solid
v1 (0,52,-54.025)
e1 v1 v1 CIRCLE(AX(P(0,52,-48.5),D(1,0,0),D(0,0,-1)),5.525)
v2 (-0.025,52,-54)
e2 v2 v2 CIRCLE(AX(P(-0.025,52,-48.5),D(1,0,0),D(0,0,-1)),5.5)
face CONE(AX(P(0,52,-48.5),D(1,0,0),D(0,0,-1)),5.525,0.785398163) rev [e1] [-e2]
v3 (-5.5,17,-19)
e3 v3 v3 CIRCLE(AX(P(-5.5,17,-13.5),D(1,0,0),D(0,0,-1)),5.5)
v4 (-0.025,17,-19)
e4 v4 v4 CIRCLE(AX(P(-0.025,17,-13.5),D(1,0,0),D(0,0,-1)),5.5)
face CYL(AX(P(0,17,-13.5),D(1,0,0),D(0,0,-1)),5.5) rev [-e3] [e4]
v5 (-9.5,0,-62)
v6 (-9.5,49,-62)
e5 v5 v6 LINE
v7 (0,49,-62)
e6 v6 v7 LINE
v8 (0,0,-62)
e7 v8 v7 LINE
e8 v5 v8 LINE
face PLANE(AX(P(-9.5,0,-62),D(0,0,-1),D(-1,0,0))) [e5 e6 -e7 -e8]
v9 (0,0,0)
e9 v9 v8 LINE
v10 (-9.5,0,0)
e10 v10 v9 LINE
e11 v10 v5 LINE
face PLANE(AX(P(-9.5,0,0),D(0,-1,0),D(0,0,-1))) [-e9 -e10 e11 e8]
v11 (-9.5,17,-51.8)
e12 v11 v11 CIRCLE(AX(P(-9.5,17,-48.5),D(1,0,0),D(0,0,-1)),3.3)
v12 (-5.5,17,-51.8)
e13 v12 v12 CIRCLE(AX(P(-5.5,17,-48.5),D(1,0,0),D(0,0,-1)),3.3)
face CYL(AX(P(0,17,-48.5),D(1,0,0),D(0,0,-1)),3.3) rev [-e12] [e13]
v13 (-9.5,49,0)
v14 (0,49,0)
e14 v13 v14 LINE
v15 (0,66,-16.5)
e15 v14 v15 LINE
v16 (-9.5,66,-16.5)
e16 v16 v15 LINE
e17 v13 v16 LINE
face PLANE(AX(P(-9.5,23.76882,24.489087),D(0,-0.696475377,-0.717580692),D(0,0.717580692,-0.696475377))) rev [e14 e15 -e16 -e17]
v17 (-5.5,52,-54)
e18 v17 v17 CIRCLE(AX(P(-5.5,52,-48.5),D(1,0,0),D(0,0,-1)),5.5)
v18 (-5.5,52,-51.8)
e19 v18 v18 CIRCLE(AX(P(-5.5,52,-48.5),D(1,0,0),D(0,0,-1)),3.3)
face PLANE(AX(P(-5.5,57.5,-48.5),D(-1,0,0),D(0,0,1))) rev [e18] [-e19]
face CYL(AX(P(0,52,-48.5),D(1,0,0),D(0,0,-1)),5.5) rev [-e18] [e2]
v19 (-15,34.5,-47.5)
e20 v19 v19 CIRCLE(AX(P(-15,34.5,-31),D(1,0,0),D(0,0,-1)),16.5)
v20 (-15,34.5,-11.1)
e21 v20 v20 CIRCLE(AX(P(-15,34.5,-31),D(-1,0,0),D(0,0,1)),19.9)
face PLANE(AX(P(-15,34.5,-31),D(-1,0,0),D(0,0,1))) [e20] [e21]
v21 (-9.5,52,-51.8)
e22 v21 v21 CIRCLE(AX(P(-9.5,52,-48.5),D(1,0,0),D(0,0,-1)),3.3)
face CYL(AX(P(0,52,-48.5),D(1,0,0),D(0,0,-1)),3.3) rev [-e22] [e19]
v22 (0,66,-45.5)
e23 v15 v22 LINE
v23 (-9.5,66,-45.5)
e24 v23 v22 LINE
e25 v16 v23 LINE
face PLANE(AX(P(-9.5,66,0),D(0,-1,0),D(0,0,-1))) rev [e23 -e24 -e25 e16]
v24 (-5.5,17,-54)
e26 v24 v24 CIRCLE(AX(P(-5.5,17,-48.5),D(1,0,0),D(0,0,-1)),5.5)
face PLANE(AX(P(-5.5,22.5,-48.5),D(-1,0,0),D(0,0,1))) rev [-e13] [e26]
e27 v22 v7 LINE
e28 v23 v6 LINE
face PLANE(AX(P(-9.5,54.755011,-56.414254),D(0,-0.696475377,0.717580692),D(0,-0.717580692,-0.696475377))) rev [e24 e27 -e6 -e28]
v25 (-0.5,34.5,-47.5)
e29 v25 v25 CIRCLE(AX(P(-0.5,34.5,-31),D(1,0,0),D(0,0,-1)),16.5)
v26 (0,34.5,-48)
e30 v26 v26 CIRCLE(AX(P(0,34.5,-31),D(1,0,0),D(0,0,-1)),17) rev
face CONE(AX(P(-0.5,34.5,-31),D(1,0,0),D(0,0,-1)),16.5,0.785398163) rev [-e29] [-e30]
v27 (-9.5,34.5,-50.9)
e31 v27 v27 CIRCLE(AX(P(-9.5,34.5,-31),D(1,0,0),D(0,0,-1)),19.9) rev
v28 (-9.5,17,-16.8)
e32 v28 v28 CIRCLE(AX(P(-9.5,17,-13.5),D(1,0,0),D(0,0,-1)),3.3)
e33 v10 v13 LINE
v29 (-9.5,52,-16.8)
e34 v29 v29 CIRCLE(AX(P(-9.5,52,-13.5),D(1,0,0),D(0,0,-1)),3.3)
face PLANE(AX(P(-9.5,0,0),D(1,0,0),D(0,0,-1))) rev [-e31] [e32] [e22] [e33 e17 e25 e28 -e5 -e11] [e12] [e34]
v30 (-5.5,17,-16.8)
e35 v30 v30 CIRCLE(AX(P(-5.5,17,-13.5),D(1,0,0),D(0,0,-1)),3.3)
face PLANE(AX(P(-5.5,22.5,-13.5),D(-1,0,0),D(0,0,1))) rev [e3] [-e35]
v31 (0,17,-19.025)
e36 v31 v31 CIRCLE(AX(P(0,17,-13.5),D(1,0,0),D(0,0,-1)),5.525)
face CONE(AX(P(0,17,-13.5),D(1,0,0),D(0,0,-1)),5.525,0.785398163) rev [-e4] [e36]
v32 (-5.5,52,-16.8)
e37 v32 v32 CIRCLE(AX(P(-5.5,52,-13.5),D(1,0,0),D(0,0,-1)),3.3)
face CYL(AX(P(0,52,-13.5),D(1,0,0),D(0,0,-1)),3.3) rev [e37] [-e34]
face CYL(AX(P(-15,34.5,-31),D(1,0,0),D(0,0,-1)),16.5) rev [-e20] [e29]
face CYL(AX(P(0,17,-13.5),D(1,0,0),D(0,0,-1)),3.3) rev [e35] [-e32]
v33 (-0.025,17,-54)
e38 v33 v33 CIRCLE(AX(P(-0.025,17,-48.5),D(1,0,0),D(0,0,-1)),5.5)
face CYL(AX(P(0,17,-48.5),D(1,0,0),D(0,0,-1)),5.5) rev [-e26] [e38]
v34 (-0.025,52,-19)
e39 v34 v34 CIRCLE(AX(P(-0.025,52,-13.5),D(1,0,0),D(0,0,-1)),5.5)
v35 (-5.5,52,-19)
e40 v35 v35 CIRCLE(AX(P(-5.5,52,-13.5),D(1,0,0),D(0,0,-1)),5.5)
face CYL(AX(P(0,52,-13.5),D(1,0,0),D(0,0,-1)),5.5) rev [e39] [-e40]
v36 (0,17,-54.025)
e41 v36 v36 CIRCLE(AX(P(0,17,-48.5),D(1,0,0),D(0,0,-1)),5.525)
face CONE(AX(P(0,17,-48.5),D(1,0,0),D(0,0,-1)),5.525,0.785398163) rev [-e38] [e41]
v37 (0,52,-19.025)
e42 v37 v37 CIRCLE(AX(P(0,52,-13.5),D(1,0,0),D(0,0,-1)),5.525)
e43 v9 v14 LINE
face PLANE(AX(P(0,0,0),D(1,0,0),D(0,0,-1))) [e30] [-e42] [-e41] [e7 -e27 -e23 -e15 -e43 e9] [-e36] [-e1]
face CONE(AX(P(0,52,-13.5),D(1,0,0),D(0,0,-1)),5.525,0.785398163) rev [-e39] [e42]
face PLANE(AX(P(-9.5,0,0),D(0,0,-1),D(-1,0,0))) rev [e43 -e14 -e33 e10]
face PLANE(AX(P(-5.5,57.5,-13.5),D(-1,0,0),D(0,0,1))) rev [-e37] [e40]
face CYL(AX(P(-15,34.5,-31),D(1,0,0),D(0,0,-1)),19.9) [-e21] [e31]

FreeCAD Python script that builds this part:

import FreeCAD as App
import Part
import Sketcher

V = App.Vector
Q = App.Units.Quantity


def edges_at(feature, points):
    """Names of the edges that pass closest to the given points."""
    edges = feature.Shape.Edges
    near = lambda p: min(range(len(edges)), key=lambda i: edges[i].distToShape(Part.Vertex(*p))[0])
    return sorted({f"Edge{near(p) + 1}" for p in points})


def add_polygon(sketch, points):
    """Adds a closed chain of lines whose ends are joined by coincident constraints."""
    first, n = sketch.GeometryCount, len(points)
    for a, b in zip(points, points[1:] + points[:1]):
        sketch.addGeometry(Part.LineSegment(App.Vector(*a, 0), App.Vector(*b, 0)), False)
    for i in range(n):
        sketch.addConstraint(Sketcher.Constraint("Coincident", first + i, 2, first + (i + 1) % n, 1))

doc = App.newDocument("Part")
params = doc.addObject("Spreadsheet::Sheet", "Params")
for row, (alias, value) in enumerate([
    ("sketch1_width", "49 mm"),
    ("sketch1_height", "62 mm"),
    ("sketch1_height2", "29 mm"),
    ("pad1_length", "9.5 mm"),
    ("sketch2_width", "4 mm"),
    ("sketch2_width2", "9.5 mm"),
    ("sketch2_height", "2.2 mm"),
    ("sketch2_height2", "3.3 mm"),
    ("groove_angle", "360 deg"),
    ("linearpattern_pitch", "35 mm"),
    ("linearpattern2_pitch", "49.497475 mm"),
    ("linearpattern3_pitch", "35 mm"),
    ("sketch3_diameter", "39.8 mm"),
    ("pad2_length", "5.5 mm"),
    ("sketch4_diameter", "33 mm"),
    ("chamfer_size", "0.5 mm"),
], start=1):
    params.set(f"A{row}", alias)
    params.set(f"B{row}", "=" + value)
    params.setAlias(f"B{row}", alias)

body = doc.addObject("PartDesign::Body", "Body")

sketch1 = body.newObject("Sketcher::SketchObject", "Sketch")
sketch1.AttachmentSupport = (doc.getObject("YZ_Plane"), [""])
sketch1.MapMode = "FlatFace"
add_polygon(sketch1, [(66, -16.5), (49, 0), (0, 0), (0, -62), (49, -62), (66, -45.5)])
sketch1.addConstraint([
    Sketcher.Constraint("Horizontal", 1),
    Sketcher.Constraint("Vertical", 2),
    Sketcher.Constraint("Horizontal", 3),
    Sketcher.Constraint("Vertical", 5),
    Sketcher.Constraint("Coincident", 1, 2, -1, 1),
    Sketcher.Constraint("Vertical", 0, 2, 3, 2),
    Sketcher.Constraint("Equal", 0, 4),
    Sketcher.Constraint("DistanceX", 1, 2, 1, 1, Q("49 mm")),
    Sketcher.Constraint("DistanceY", 2, 2, 2, 1, Q("62 mm")),
    Sketcher.Constraint("DistanceY", 5, 1, 5, 2, Q("29 mm")),
    Sketcher.Constraint("DistanceX", -1, 1, 4, 2, Q("66 mm")),
])
sketch1.setExpression("Constraints[13]", "Params.sketch1_width")
sketch1.setExpression("Constraints[14]", "Params.sketch1_height")
sketch1.setExpression("Constraints[15]", "Params.sketch1_height2")
pad1 = body.newObject("PartDesign::Pad", "Pad")
pad1.Profile = sketch1
pad1.setExpression("Length", "Params.pad1_length")
pad1.Reversed = True

sketch2 = body.newObject("Sketcher::SketchObject", "Sketch001")
sketch2.AttachmentSupport = (doc.getObject("XZ_Plane"), [""])
sketch2.MapMode = "FlatFace"
sketch2.AttachmentOffset = App.Placement(V(0, 0, -52), App.Rotation())
add_polygon(sketch2, [(-9.5, -13.5), (0, -13.5), (0, -19.025), (-0.025, -19), (-5.5, -19), (-5.5, -16.8), (-9.5, -16.8)])
sketch2.addGeometry(Part.LineSegment(V(0, -13.5, 0), V(-9.5, -13.5, 0)), True)
sketch2.addConstraint([
    Sketcher.Constraint("Horizontal", 0),
    Sketcher.Constraint("Vertical", 1),
    Sketcher.Constraint("Horizontal", 3),
    Sketcher.Constraint("Vertical", 4),
    Sketcher.Constraint("Horizontal", 5),
    Sketcher.Constraint("Vertical", 6),
    Sketcher.Constraint("Horizontal", 7),
    Sketcher.Constraint("Coincident", 7, 1, 0, 2),
    Sketcher.Constraint("PointOnObject", 0, 2, -2),
    Sketcher.Constraint("Vertical", 5, 2, 7, 2),
    Sketcher.Constraint("DistanceX", 5, 2, 5, 1, Q("4 mm")),
    Sketcher.Constraint("Angle", 2, Q("135 deg")),
    Sketcher.Constraint("DistanceX", 0, 1, 0, 2, Q("9.5 mm")),
    Sketcher.Constraint("DistanceY", 4, 1, 4, 2, Q("2.2 mm")),
    Sketcher.Constraint("DistanceY", 6, 1, 6, 2, Q("3.3 mm")),
    Sketcher.Constraint("DistanceY", 2, 2, -1, 1, Q("19 mm")),
    Sketcher.Constraint("DistanceX", 3, 2, 3, 1, Q("5.475 mm")),
])
sketch2.setExpression("Constraints[17]", "Params.sketch2_width")
sketch2.setExpression("Constraints[19]", "Params.sketch2_width2")
sketch2.setExpression("Constraints[20]", "Params.sketch2_height")
sketch2.setExpression("Constraints[21]", "Params.sketch2_height2")
groove = body.newObject("PartDesign::Groove", "Groove")
groove.Profile = sketch2
groove.ReferenceAxis = (sketch2, ["Axis0"])
groove.setExpression("Angle", "Params.groove_angle")
doc.recompute()

linearpattern = body.newObject("PartDesign::LinearPattern", "LinearPattern")
linearpattern.Originals = [groove]
linearpattern.Direction = (doc.getObject("Z_Axis"), [""])
linearpattern.Mode = "offset"
linearpattern.setExpression("Offset", "Params.linearpattern_pitch")
linearpattern.Occurrences = 2
linearpattern.Reversed = True
body.Tip = linearpattern
doc.recompute()

datumline = body.newObject("PartDesign::Line", "DatumLine")
datumline.Placement = App.Placement(V(0, 0, 0), App.Rotation(V(0, 0, 1), V(0, -0.707106781, -0.707106781)))
linearpattern2 = body.newObject("PartDesign::LinearPattern", "LinearPattern001")
linearpattern2.Originals = [groove]
linearpattern2.Direction = (datumline, [""])
linearpattern2.Mode = "offset"
linearpattern2.setExpression("Offset", "Params.linearpattern2_pitch")
linearpattern2.Occurrences = 2
body.Tip = linearpattern2
doc.recompute()

linearpattern3 = body.newObject("PartDesign::LinearPattern", "LinearPattern002")
linearpattern3.Originals = [groove]
linearpattern3.Direction = (doc.getObject("Y_Axis"), [""])
linearpattern3.Mode = "offset"
linearpattern3.setExpression("Offset", "Params.linearpattern3_pitch")
linearpattern3.Occurrences = 2
linearpattern3.Reversed = True
body.Tip = linearpattern3

sketch3 = body.newObject("Sketcher::SketchObject", "Sketch002")
sketch3.AttachmentSupport = (doc.getObject("YZ_Plane"), [""])
sketch3.MapMode = "FlatFace"
sketch3.AttachmentOffset = App.Placement(V(0, 0, -9.5), App.Rotation())
sketch3.addGeometry(Part.Circle(V(34.5, -31, 0), V(0, 0, 1), 19.9), False)
sketch3.addConstraint([
    Sketcher.Constraint("Diameter", 0, Q("39.8 mm")),
    Sketcher.Constraint("DistanceY", 0, 3, -1, 1, Q("31 mm")),
    Sketcher.Constraint("DistanceX", -1, 1, 0, 3, Q("34.5 mm")),
])
sketch3.setExpression("Constraints[0]", "Params.sketch3_diameter")
pad2 = body.newObject("PartDesign::Pad", "Pad001")
pad2.Profile = sketch3
pad2.setExpression("Length", "Params.pad2_length")
pad2.Reversed = True

sketch4 = body.newObject("Sketcher::SketchObject", "Sketch003")
sketch4.AttachmentSupport = (doc.getObject("YZ_Plane"), [""])
sketch4.MapMode = "FlatFace"
sketch4.addGeometry(Part.Circle(V(34.5, -31, 0), V(0, 0, 1), 16.5), False)
sketch4.addConstraint([
    Sketcher.Constraint("Diameter", 0, Q("33 mm")),
    Sketcher.Constraint("DistanceY", 0, 3, -1, 1, Q("31 mm")),
    Sketcher.Constraint("DistanceX", -1, 1, 0, 3, Q("34.5 mm")),
])
sketch4.setExpression("Constraints[0]", "Params.sketch4_diameter")
pocket1 = body.newObject("PartDesign::Pocket", "Pocket")
pocket1.Profile = sketch4
pocket1.Type = "ThroughAll"
doc.recompute()

chamfer = body.newObject("PartDesign::Chamfer", "Chamfer")
chamfer.Base = (pocket1, edges_at(pocket1, [(0, 34.5, -14.5)]))
chamfer.setExpression("Size", "Params.chamfer_size")

doc.recompute()
